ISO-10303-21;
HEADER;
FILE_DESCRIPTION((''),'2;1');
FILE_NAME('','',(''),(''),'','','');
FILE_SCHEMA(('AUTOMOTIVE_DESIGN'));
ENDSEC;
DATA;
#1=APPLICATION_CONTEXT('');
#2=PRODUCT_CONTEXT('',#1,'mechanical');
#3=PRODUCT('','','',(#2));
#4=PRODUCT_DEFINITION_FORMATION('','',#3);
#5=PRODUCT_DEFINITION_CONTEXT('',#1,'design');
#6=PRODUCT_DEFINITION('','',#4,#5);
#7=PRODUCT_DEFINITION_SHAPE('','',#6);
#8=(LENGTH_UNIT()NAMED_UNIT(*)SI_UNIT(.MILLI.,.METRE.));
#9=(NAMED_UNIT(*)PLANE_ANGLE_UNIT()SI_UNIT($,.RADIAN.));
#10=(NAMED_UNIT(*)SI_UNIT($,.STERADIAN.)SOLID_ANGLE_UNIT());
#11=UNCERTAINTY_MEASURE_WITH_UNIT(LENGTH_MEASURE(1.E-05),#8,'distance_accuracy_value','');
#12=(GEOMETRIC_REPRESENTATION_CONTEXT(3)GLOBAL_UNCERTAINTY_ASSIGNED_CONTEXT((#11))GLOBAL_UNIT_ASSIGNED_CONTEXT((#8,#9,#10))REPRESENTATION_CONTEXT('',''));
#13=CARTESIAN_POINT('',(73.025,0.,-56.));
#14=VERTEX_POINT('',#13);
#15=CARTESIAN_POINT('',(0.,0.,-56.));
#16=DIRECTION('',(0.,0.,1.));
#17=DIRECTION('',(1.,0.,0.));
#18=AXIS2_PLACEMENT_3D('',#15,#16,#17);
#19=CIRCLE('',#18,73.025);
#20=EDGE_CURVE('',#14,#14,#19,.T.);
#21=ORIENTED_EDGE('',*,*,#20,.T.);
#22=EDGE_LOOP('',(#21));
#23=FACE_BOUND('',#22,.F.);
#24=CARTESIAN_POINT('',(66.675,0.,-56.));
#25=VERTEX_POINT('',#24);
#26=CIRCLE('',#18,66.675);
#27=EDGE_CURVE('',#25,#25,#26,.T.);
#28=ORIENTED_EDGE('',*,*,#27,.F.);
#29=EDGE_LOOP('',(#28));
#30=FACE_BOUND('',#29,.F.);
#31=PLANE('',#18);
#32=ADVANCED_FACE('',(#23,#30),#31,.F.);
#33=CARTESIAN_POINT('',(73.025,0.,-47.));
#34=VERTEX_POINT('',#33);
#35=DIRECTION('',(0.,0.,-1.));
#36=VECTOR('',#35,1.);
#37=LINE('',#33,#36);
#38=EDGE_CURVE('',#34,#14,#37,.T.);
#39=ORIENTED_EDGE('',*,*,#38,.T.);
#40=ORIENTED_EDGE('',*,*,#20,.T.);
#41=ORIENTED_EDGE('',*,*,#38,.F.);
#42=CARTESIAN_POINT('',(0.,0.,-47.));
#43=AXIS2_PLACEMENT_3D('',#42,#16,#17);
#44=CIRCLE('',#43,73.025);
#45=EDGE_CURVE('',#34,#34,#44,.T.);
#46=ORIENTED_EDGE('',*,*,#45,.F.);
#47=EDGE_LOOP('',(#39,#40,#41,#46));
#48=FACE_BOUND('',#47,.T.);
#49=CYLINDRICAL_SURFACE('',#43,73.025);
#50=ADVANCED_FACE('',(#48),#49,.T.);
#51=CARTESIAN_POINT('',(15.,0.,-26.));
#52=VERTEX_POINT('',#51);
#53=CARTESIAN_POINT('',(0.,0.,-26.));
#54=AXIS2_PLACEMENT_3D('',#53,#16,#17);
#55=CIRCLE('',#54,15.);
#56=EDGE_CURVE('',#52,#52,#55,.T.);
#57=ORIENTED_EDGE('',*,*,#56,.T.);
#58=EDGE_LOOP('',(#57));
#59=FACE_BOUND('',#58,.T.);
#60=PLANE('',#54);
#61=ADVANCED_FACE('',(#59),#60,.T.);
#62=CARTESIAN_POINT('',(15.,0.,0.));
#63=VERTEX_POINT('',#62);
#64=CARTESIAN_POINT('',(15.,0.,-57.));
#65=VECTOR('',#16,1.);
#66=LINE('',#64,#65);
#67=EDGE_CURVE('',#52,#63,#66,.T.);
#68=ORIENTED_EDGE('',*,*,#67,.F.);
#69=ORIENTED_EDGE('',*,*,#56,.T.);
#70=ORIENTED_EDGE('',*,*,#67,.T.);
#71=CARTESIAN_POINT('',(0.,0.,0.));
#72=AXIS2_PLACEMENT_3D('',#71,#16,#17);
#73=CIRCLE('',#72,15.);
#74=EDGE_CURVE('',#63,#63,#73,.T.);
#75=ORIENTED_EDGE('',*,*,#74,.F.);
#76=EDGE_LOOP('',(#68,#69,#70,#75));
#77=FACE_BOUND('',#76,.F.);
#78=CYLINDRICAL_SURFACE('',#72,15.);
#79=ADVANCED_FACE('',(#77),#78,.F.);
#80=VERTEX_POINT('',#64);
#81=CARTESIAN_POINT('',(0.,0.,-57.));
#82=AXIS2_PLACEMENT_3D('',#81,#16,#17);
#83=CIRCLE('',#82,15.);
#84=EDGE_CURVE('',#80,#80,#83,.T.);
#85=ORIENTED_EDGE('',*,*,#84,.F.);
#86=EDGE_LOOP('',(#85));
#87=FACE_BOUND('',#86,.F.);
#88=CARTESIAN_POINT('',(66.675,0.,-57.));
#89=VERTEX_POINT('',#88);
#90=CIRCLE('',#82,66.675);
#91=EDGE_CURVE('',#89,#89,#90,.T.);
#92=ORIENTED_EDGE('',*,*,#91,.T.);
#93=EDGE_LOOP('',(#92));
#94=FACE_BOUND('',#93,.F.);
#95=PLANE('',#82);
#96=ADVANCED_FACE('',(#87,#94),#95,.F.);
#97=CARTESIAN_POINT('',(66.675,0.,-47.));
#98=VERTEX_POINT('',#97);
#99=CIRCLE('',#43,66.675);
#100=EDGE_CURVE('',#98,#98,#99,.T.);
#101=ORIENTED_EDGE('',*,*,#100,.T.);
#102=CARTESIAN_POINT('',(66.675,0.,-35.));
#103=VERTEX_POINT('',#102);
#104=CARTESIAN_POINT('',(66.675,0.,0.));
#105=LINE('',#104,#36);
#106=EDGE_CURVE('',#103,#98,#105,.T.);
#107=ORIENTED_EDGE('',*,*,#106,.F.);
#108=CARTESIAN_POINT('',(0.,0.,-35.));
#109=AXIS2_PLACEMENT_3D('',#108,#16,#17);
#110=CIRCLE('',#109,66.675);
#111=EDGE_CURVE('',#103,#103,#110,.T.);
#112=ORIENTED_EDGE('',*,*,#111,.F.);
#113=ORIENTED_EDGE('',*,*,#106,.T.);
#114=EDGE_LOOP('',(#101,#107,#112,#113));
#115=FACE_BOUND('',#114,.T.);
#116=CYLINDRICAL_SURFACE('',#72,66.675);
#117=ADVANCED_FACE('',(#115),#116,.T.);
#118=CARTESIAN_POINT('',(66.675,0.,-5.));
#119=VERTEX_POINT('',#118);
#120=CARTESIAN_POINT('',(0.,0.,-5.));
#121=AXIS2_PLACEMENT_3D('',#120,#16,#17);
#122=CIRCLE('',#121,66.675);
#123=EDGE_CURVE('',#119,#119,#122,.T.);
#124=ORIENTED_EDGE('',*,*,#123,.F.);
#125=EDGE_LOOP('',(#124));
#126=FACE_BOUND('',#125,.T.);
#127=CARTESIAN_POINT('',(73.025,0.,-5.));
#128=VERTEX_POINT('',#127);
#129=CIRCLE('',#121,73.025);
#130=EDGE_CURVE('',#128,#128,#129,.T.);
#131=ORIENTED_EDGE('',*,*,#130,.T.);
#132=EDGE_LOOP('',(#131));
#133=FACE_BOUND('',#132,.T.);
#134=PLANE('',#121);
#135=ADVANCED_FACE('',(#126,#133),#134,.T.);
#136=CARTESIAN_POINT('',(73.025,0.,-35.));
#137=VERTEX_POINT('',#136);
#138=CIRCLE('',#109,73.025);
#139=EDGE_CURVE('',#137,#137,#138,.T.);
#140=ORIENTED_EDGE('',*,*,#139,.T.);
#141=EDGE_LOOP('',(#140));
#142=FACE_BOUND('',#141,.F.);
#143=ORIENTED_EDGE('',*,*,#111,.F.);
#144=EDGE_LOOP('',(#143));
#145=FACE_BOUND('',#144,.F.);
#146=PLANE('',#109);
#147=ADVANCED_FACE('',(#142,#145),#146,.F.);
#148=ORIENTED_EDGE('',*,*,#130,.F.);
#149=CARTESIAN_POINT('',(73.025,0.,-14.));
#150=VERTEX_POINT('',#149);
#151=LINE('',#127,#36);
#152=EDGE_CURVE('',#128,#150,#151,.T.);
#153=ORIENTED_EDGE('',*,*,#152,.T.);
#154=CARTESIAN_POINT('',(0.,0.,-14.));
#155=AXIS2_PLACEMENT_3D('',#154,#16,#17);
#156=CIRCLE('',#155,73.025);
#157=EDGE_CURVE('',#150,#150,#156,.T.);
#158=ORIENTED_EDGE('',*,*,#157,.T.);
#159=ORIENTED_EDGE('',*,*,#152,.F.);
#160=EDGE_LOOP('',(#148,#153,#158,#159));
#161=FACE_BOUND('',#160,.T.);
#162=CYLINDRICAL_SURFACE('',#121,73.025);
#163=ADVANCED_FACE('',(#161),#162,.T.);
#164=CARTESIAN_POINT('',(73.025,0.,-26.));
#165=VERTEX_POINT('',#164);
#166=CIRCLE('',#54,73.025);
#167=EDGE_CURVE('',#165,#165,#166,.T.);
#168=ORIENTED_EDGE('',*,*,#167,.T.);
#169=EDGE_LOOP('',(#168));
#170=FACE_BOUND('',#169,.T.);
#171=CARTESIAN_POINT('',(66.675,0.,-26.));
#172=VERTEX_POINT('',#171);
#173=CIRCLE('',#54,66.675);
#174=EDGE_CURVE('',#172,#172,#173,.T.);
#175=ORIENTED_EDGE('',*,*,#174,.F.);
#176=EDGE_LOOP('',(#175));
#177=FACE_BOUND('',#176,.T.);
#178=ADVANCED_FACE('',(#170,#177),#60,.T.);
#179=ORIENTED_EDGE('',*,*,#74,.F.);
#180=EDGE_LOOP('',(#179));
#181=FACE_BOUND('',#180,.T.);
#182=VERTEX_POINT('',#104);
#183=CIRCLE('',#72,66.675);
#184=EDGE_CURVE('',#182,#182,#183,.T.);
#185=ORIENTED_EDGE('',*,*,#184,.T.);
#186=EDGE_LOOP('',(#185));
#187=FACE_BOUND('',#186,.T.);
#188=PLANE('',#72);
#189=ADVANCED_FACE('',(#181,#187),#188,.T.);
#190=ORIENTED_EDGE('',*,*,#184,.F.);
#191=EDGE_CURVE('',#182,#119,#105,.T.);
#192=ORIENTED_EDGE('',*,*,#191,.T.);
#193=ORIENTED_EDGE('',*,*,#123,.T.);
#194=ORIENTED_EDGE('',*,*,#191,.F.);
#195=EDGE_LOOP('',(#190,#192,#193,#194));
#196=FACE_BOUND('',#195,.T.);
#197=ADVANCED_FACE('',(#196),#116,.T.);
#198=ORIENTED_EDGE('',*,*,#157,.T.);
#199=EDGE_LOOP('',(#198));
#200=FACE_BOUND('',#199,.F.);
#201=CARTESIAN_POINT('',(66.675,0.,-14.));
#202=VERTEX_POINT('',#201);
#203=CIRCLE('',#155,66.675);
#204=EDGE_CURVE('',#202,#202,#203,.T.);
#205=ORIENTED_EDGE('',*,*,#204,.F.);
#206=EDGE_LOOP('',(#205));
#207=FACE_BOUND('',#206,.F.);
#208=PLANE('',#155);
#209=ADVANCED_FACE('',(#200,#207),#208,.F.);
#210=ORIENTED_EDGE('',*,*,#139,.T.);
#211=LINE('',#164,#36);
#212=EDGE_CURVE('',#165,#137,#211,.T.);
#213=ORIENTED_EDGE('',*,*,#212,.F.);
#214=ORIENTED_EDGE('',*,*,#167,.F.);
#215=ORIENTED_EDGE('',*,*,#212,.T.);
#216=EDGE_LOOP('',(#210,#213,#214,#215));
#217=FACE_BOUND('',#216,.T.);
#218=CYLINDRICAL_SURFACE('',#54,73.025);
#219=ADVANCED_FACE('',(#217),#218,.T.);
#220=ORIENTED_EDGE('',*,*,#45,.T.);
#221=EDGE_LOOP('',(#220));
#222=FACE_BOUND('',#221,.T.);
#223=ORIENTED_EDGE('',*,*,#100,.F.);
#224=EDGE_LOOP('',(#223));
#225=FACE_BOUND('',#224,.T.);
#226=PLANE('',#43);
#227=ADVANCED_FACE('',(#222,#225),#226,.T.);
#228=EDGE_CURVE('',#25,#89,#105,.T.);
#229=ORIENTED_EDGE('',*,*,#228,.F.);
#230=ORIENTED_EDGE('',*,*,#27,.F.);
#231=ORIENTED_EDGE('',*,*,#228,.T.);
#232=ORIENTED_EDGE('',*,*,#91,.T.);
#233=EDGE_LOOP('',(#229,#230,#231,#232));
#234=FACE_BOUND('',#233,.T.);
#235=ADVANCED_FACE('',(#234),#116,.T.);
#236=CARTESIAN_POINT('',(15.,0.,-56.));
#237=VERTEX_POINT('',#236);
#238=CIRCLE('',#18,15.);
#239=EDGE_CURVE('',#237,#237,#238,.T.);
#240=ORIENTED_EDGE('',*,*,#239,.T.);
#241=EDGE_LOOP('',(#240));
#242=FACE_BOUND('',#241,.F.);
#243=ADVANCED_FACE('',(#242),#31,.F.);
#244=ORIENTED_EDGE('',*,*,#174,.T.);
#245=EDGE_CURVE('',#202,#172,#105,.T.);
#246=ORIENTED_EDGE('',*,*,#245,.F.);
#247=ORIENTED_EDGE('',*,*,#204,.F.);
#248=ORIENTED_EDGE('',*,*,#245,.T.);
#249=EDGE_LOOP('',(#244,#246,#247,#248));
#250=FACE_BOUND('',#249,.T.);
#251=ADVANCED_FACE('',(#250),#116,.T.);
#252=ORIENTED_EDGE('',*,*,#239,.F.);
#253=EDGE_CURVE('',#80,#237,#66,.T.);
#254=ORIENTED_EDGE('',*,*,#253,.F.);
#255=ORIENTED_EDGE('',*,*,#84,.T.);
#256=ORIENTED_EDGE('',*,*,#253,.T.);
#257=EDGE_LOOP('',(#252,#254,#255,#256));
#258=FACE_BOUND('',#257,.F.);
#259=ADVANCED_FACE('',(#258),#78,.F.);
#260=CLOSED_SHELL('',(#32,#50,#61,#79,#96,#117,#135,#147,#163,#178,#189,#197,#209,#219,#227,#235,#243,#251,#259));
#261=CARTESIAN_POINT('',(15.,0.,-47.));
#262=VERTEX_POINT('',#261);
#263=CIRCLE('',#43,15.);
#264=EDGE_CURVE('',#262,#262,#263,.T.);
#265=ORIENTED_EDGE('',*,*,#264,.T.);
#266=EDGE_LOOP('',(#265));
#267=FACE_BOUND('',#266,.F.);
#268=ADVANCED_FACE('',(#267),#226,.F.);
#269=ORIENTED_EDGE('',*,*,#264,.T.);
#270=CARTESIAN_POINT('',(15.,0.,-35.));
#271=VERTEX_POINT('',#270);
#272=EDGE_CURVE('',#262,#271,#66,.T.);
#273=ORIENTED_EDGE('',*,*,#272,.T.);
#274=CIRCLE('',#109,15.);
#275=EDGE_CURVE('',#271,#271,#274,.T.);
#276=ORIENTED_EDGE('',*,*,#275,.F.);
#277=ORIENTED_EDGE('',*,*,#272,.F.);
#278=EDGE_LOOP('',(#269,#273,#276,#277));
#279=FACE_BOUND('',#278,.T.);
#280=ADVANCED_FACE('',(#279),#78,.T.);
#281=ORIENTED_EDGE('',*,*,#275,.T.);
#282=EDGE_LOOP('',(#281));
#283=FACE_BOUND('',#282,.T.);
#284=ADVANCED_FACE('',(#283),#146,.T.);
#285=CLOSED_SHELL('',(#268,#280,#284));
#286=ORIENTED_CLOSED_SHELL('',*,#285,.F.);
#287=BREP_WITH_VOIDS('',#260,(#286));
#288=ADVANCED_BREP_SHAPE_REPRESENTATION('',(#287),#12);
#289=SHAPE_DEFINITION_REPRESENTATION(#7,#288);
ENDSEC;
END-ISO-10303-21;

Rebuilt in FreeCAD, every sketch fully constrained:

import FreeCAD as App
import Part
import Sketcher

V = App.Vector
Q = App.Units.Quantity

doc = App.newDocument("Part")
body = doc.addObject("PartDesign::Body", "Body")

# Sketch on XY plane
sketch1 = doc.addObject("Sketcher::SketchObject", "Sketch")
body.addObject(sketch1)
sketch1.AttachmentSupport = (doc.XY_Plane, [""])
sketch1.MapMode = "FlatFace"
sketch1.addGeometry([
    Part.Circle(V(0, 0, 0), V(0, 0, 1), 67),
    Part.Circle(V(0, 0, 0), V(0, 0, 1), 15),
], False)
sketch1.addConstraint([
    Sketcher.Constraint("Coincident", 0, 3, -1, 1),
    Sketcher.Constraint("Coincident", 1, 3, -1, 1),
    Sketcher.Constraint("Diameter", 1, Q("30 mm")),
    Sketcher.Constraint("Diameter", 0, Q("133.35 mm")),
])
pad1 = doc.addObject("PartDesign::Pad", "Pad")
body.addObject(pad1)
pad1.Profile = sketch1
pad1.Length = 57
pad1.Reversed = True

# Sketch on XY plane
sketch2 = doc.addObject("Sketcher::SketchObject", "Sketch001")
body.addObject(sketch2)
sketch2.AttachmentSupport = (doc.XY_Plane, [""])
sketch2.MapMode = "FlatFace"
sketch2.AttachmentOffset = App.Placement(V(0, 0, -5), App.Rotation())
sketch2.addGeometry(Part.Circle(V(0, 0, 0), V(0, 0, 1), 73), False)
sketch2.addConstraint([
    Sketcher.Constraint("Coincident", 0, 3, -1, 1),
    Sketcher.Constraint("Diameter", 0, Q("146.05 mm")),
])
pad2 = doc.addObject("PartDesign::Pad", "Pad001")
body.addObject(pad2)
pad2.Profile = sketch2
pad2.Length = 9
pad2.Reversed = True

# Sketch on XY plane
sketch3 = doc.addObject("Sketcher::SketchObject", "Sketch002")
body.addObject(sketch3)
sketch3.AttachmentSupport = (doc.XY_Plane, [""])
sketch3.MapMode = "FlatFace"
sketch3.AttachmentOffset = App.Placement(V(0, 0, -5), App.Rotation())
sketch3.addGeometry(Part.Circle(V(0, 0, 0), V(0, 0, 1), 15), False)
sketch3.addConstraint([
    Sketcher.Constraint("Coincident", 0, 3, -1, 1),
    Sketcher.Constraint("Diameter", 0, Q("30 mm")),
])
pocket1 = doc.addObject("PartDesign::Pocket", "Pocket")
body.addObject(pocket1)
pocket1.Profile = sketch3
pocket1.Type = "ThroughAll"
doc.recompute()

linearpattern = doc.addObject("PartDesign::LinearPattern", "LinearPattern")
body.addObject(linearpattern)
linearpattern.Originals = [pad2]
linearpattern.Direction = (doc.Z_Axis, [""])
linearpattern.Mode = "offset"
linearpattern.Offset = 21
linearpattern.Occurrences = 3
linearpattern.Reversed = True
body.Tip = linearpattern

doc.recompute()
